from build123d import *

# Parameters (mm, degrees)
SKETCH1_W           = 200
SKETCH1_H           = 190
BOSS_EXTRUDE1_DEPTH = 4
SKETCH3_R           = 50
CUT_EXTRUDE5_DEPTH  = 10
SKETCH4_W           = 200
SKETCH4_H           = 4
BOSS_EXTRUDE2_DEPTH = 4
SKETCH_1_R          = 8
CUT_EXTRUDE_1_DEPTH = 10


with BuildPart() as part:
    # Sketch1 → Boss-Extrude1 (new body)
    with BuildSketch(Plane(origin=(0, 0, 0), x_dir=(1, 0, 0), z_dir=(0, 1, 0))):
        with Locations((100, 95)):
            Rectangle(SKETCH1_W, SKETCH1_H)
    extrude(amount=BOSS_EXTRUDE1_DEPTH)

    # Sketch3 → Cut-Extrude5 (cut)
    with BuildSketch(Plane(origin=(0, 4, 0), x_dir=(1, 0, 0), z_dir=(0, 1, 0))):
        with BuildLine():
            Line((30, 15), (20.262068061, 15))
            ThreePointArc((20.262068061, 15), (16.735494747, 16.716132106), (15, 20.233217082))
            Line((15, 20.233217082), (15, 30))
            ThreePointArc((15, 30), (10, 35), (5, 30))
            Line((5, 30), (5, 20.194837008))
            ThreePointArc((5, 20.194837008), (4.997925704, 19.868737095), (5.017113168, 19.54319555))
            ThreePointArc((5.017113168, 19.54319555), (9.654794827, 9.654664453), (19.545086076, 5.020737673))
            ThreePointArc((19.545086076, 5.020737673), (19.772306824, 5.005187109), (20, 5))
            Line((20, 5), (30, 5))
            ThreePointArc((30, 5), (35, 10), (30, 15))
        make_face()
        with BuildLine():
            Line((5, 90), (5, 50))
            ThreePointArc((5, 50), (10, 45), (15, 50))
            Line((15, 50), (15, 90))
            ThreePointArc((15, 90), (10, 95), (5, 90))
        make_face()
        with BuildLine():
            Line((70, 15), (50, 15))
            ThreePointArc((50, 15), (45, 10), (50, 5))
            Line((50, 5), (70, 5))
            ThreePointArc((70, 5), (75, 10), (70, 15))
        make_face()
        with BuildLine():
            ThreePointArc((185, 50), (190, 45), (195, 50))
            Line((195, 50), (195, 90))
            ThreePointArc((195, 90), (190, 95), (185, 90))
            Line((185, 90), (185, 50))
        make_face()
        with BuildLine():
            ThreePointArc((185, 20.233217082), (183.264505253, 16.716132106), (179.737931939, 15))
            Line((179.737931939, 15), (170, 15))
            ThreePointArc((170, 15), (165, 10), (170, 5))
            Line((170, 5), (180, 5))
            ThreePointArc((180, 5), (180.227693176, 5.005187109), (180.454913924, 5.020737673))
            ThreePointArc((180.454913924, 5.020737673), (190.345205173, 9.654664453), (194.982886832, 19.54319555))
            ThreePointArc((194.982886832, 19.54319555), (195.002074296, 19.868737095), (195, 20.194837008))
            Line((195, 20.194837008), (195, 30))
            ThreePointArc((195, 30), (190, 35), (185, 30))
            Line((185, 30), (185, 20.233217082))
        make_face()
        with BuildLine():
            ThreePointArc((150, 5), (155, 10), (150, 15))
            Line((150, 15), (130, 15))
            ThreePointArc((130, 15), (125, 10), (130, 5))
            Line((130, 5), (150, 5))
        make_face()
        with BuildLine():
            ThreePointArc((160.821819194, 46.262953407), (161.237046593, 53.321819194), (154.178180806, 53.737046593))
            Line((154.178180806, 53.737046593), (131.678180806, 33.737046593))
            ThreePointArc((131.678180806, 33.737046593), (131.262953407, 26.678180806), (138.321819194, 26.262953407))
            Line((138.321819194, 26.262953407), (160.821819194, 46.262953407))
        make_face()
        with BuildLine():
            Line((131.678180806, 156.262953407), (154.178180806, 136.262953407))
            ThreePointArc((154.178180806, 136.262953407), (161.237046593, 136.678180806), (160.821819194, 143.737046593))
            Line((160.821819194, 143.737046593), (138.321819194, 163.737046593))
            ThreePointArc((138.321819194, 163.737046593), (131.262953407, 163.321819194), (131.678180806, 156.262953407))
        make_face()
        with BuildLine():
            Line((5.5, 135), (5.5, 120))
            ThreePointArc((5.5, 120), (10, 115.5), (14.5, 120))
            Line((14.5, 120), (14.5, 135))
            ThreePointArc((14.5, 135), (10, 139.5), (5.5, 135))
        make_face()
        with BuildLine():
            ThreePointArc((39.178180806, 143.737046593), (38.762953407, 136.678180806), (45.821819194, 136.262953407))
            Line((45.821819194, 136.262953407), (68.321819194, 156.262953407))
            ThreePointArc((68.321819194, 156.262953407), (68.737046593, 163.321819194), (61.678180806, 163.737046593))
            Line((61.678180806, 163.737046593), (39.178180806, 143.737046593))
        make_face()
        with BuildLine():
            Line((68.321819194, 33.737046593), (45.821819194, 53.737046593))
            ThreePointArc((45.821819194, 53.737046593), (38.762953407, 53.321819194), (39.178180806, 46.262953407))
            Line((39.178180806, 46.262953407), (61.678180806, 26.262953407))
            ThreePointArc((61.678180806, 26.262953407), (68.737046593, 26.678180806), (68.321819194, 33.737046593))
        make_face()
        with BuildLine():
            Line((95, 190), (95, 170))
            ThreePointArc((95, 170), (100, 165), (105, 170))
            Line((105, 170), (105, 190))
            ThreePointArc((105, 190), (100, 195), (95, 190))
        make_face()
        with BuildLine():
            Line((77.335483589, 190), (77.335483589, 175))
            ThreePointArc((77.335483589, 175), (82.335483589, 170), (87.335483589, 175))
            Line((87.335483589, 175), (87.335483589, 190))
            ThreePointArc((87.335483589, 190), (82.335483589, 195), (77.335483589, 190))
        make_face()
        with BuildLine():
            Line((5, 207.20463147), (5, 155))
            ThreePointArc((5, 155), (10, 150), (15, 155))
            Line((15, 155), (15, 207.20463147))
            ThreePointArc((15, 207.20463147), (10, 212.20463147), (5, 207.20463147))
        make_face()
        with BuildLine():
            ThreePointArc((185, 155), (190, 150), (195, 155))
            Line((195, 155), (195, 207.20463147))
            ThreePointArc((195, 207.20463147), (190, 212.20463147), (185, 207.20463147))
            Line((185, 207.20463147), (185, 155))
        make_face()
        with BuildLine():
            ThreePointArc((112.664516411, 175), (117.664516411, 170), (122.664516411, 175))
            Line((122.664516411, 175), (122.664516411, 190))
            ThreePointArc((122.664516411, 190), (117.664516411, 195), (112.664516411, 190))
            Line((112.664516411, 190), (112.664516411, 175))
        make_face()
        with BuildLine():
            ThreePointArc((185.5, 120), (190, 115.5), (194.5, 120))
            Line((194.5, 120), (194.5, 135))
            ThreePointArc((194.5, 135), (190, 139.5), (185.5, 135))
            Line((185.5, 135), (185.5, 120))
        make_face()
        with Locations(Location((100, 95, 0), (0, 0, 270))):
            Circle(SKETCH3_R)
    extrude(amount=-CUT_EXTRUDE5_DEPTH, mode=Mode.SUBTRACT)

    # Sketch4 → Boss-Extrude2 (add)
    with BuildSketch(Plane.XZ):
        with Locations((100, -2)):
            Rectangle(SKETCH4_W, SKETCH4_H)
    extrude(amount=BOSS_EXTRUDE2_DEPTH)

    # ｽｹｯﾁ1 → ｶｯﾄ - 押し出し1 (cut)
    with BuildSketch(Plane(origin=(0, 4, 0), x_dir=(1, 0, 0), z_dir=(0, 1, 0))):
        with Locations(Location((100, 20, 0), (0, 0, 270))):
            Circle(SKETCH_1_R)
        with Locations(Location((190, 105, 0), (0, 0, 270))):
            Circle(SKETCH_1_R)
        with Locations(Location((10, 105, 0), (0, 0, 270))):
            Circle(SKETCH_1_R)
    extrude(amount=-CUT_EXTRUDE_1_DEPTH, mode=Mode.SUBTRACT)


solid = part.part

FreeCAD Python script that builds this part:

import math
import FreeCAD as App
import Part
import Sketcher
from FreeCAD import Vector

doc = App.newDocument("Part")
body = doc.addObject("PartDesign::Body", "Body")

# Sketch on XZ plane
sketch1 = body.newObject("Sketcher::SketchObject", "Sketch")
sketch1.AttachmentSupport = (doc.getObject("XZ_Plane"), [""])
sketch1.MapMode = "FlatFace"
sketch1.addGeometry([
    Part.LineSegment(Vector(0, -190, 0), Vector(0, 0, 0)),
    Part.LineSegment(Vector(0, 0, 0), Vector(200, 0, 0)),
    Part.LineSegment(Vector(200, 0, 0), Vector(200, -190, 0)),
    Part.LineSegment(Vector(200, -190, 0), Vector(0, -190, 0)),
], False)
sketch1.addConstraint([
    Sketcher.Constraint("Coincident", 0, 2, 1, 1),
    Sketcher.Constraint("Coincident", 1, 2, 2, 1),
    Sketcher.Constraint("Coincident", 2, 2, 3, 1),
    Sketcher.Constraint("Coincident", 3, 2, 0, 1),
    Sketcher.Constraint("Vertical", 0),
    Sketcher.Constraint("Horizontal", 1),
    Sketcher.Constraint("Vertical", 2),
    Sketcher.Constraint("Horizontal", 3),
    Sketcher.Constraint("Coincident", 0, 2, -1, 1),
    Sketcher.Constraint("DistanceX", 1, 1, 1, 2, 200.0),
    Sketcher.Constraint("DistanceY", 0, 1, 0, 2, 190.0),
])
pad1 = body.newObject("PartDesign::Pad", "Pad")
pad1.Profile = sketch1
pad1.Length = 4
pad1.Reversed = True

# Sketch on XZ plane
sketch2 = body.newObject("Sketcher::SketchObject", "Sketch001")
sketch2.AttachmentSupport = (doc.getObject("XZ_Plane"), [""])
sketch2.MapMode = "FlatFace"
sketch2.AttachmentOffset = App.Placement(Vector(0, 0, -4), App.Rotation())
sketch2.addGeometry([
    Part.LineSegment(Vector(30, -15, 0), Vector(20.262068, -15, 0)),  # 0
    Part.ArcOfCircle(Part.Circle(Vector(21.0059, -21.01008, 0), Vector(0, 0, 1), 6.055935), math.radians(97.055279), math.radians(172.629716)),  # 1
    Part.LineSegment(Vector(15, -20.233217, 0), Vector(15, -30, 0)),  # 2
    Part.ArcOfCircle(Part.Circle(Vector(10, -30, 0), Vector(0, 0, 1), 5), math.radians(180), math.radians(360)),  # 3
    Part.LineSegment(Vector(5, -30, 0), Vector(5, -20.194837, 0)),  # 4
    Part.ArcOfCircle(Part.Circle(Vector(9.996203, -20, 0), Vector(0, 0, 1), 5), math.radians(174.758097), math.radians(182.233233)),  # 5
    Part.ArcOfCircle(Part.Circle(Vector(21.0059, -21.01008, 0), Vector(0, 0, 1), 16.055935), math.radians(95.220148), math.radians(174.758097)),  # 6
    Part.ArcOfCircle(Part.Circle(Vector(20, -10, 0), Vector(0, 0, 1), 5), math.radians(90), math.radians(95.220148)),  # 7
    Part.LineSegment(Vector(20, -5, 0), Vector(30, -5, 0)),  # 8
    Part.ArcOfCircle(Part.Circle(Vector(30, -10, 0), Vector(0, 0, 1), 5), math.radians(-90), math.radians(90)),  # 9
    Part.LineSegment(Vector(5, -90, 0), Vector(5, -50, 0)),  # 10
    Part.ArcOfCircle(Part.Circle(Vector(10, -50, 0), Vector(0, 0, 1), 5), math.radians(0), math.radians(180)),  # 11
    Part.LineSegment(Vector(15, -50, 0), Vector(15, -90, 0)),  # 12
    Part.ArcOfCircle(Part.Circle(Vector(10, -90, 0), Vector(0, 0, 1), 5), math.radians(180), math.radians(360)),  # 13
    Part.LineSegment(Vector(70, -15, 0), Vector(50, -15, 0)),  # 14
    Part.ArcOfCircle(Part.Circle(Vector(50, -10, 0), Vector(0, 0, 1), 5), math.radians(90), math.radians(270)),  # 15
    Part.LineSegment(Vector(50, -5, 0), Vector(70, -5, 0)),  # 16
    Part.ArcOfCircle(Part.Circle(Vector(70, -10, 0), Vector(0, 0, 1), 5), math.radians(-90), math.radians(90)),  # 17
    Part.ArcOfCircle(Part.Circle(Vector(190, -50, 0), Vector(0, 0, 1), 5), math.radians(0), math.radians(180)),  # 18
    Part.LineSegment(Vector(195, -50, 0), Vector(195, -90, 0)),  # 19
    Part.ArcOfCircle(Part.Circle(Vector(190, -90, 0), Vector(0, 0, 1), 5), math.radians(180), math.radians(360)),  # 20
    Part.LineSegment(Vector(185, -90, 0), Vector(185, -50, 0)),  # 21
    Part.ArcOfCircle(Part.Circle(Vector(178.9941, -21.01008, 0), Vector(0, 0, 1), 6.055935), math.radians(7.370284), math.radians(82.944721)),  # 22
    Part.LineSegment(Vector(179.737932, -15, 0), Vector(170, -15, 0)),  # 23
    Part.ArcOfCircle(Part.Circle(Vector(170, -10, 0), Vector(0, 0, 1), 5), math.radians(90), math.radians(270)),  # 24
    Part.LineSegment(Vector(170, -5, 0), Vector(180, -5, 0)),  # 25
    Part.ArcOfCircle(Part.Circle(Vector(180, -10, 0), Vector(0, 0, 1), 5), math.radians(84.779852), math.radians(90)),  # 26
    Part.ArcOfCircle(Part.Circle(Vector(178.9941, -21.01008, 0), Vector(0, 0, 1), 16.055935), math.radians(5.241903), math.radians(84.779852)),  # 27
    Part.ArcOfCircle(Part.Circle(Vector(190.003797, -20, 0), Vector(0, 0, 1), 5), math.radians(-2.233233), math.radians(5.241903)),  # 28
    Part.LineSegment(Vector(195, -20.194837, 0), Vector(195, -30, 0)),  # 29
    Part.ArcOfCircle(Part.Circle(Vector(190, -30, 0), Vector(0, 0, 1), 5), math.radians(180), math.radians(360)),  # 30
    Part.LineSegment(Vector(185, -30, 0), Vector(185, -20.233217, 0)),  # 31
    Part.ArcOfCircle(Part.Circle(Vector(150, -10, 0), Vector(0, 0, 1), 5), math.radians(-90), math.radians(90)),  # 32
    Part.LineSegment(Vector(150, -15, 0), Vector(130, -15, 0)),  # 33
    Part.ArcOfCircle(Part.Circle(Vector(130, -10, 0), Vector(0, 0, 1), 5), math.radians(90), math.radians(270)),  # 34
    Part.LineSegment(Vector(130, -5, 0), Vector(150, -5, 0)),  # 35
    Part.ArcOfCircle(Part.Circle(Vector(157.5, -50, 0), Vector(0, 0, 1), 5), math.radians(-131.633539), math.radians(48.366461)),  # 36
    Part.LineSegment(Vector(154.178181, -53.737047, 0), Vector(131.678181, -33.737047, 0)),  # 37
    Part.ArcOfCircle(Part.Circle(Vector(135, -30, 0), Vector(0, 0, 1), 5), math.radians(48.366461), math.radians(228.366461)),  # 38
    Part.LineSegment(Vector(138.321819, -26.262953, 0), Vector(160.821819, -46.262953, 0)),  # 39
    Part.LineSegment(Vector(131.678181, -156.262953, 0), Vector(154.178181, -136.262953, 0)),  # 40
    Part.ArcOfCircle(Part.Circle(Vector(157.5, -140, 0), Vector(0, 0, 1), 5), math.radians(-48.366461), math.radians(131.633539)),  # 41
    Part.LineSegment(Vector(160.821819, -143.737047, 0), Vector(138.321819, -163.737047, 0)),  # 42
    Part.ArcOfCircle(Part.Circle(Vector(135, -160, 0), Vector(0, 0, 1), 5), math.radians(131.633539), math.radians(311.633539)),  # 43
    Part.LineSegment(Vector(5.5, -135, 0), Vector(5.5, -120, 0)),  # 44
    Part.ArcOfCircle(Part.Circle(Vector(10, -120, 0), Vector(0, 0, 1), 4.5), math.radians(0), math.radians(180)),  # 45
    Part.LineSegment(Vector(14.5, -120, 0), Vector(14.5, -135, 0)),  # 46
    Part.ArcOfCircle(Part.Circle(Vector(10, -135, 0), Vector(0, 0, 1), 4.5), math.radians(180), math.radians(360)),  # 47
    Part.ArcOfCircle(Part.Circle(Vector(42.5, -140, 0), Vector(0, 0, 1), 5), math.radians(48.366461), math.radians(228.366461)),  # 48
    Part.LineSegment(Vector(45.821819, -136.262953, 0), Vector(68.321819, -156.262953, 0)),  # 49
    Part.ArcOfCircle(Part.Circle(Vector(65, -160, 0), Vector(0, 0, 1), 5), math.radians(-131.633539), math.radians(48.366461)),  # 50
    Part.LineSegment(Vector(61.678181, -163.737047, 0), Vector(39.178181, -143.737047, 0)),  # 51
    Part.LineSegment(Vector(68.321819, -33.737047, 0), Vector(45.821819, -53.737047, 0)),  # 52
    Part.ArcOfCircle(Part.Circle(Vector(42.5, -50, 0), Vector(0, 0, 1), 5), math.radians(131.633539), math.radians(311.633539)),  # 53
    Part.LineSegment(Vector(39.178181, -46.262953, 0), Vector(61.678181, -26.262953, 0)),  # 54
    Part.ArcOfCircle(Part.Circle(Vector(65, -30, 0), Vector(0, 0, 1), 5), math.radians(-48.366461), math.radians(131.633539)),  # 55
    Part.LineSegment(Vector(95, -190, 0), Vector(95, -170, 0)),  # 56
    Part.ArcOfCircle(Part.Circle(Vector(100, -170, 0), Vector(0, 0, 1), 5), math.radians(0), math.radians(180)),  # 57
    Part.LineSegment(Vector(105, -170, 0), Vector(105, -190, 0)),  # 58
    Part.ArcOfCircle(Part.Circle(Vector(100, -190, 0), Vector(0, 0, 1), 5), math.radians(180), math.radians(360)),  # 59
    Part.LineSegment(Vector(77.335484, -190, 0), Vector(77.335484, -175, 0)),  # 60
    Part.ArcOfCircle(Part.Circle(Vector(82.335484, -175, 0), Vector(0, 0, 1), 5), math.radians(0), math.radians(180)),  # 61
    Part.LineSegment(Vector(87.335484, -175, 0), Vector(87.335484, -190, 0)),  # 62
    Part.ArcOfCircle(Part.Circle(Vector(82.335484, -190, 0), Vector(0, 0, 1), 5), math.radians(180), math.radians(360)),  # 63
    Part.LineSegment(Vector(5, -207.204631, 0), Vector(5, -155, 0)),  # 64
    Part.ArcOfCircle(Part.Circle(Vector(10, -155, 0), Vector(0, 0, 1), 5), math.radians(0), math.radians(180)),  # 65
    Part.LineSegment(Vector(15, -155, 0), Vector(15, -207.204631, 0)),  # 66
    Part.ArcOfCircle(Part.Circle(Vector(10, -207.204631, 0), Vector(0, 0, 1), 5), math.radians(180), math.radians(360)),  # 67
    Part.ArcOfCircle(Part.Circle(Vector(190, -155, 0), Vector(0, 0, 1), 5), math.radians(0), math.radians(180)),  # 68
    Part.LineSegment(Vector(195, -155, 0), Vector(195, -207.204631, 0)),  # 69
    Part.ArcOfCircle(Part.Circle(Vector(190, -207.204631, 0), Vector(0, 0, 1), 5), math.radians(180), math.radians(360)),  # 70
    Part.LineSegment(Vector(185, -207.204631, 0), Vector(185, -155, 0)),  # 71
    Part.ArcOfCircle(Part.Circle(Vector(117.664516, -175, 0), Vector(0, 0, 1), 5), math.radians(0), math.radians(180)),  # 72
    Part.LineSegment(Vector(122.664516, -175, 0), Vector(122.664516, -190, 0)),  # 73
    Part.ArcOfCircle(Part.Circle(Vector(117.664516, -190, 0), Vector(0, 0, 1), 5), math.radians(180), math.radians(360)),  # 74
    Part.LineSegment(Vector(112.664516, -190, 0), Vector(112.664516, -175, 0)),  # 75
    Part.ArcOfCircle(Part.Circle(Vector(190, -120, 0), Vector(0, 0, 1), 4.5), math.radians(0), math.radians(180)),  # 76
    Part.LineSegment(Vector(194.5, -120, 0), Vector(194.5, -135, 0)),  # 77
    Part.ArcOfCircle(Part.Circle(Vector(190, -135, 0), Vector(0, 0, 1), 4.5), math.radians(180), math.radians(360)),  # 78
    Part.LineSegment(Vector(185.5, -135, 0), Vector(185.5, -120, 0)),  # 79
    Part.Circle(Vector(100, -95, 0), Vector(0, 0, 1), 50),  # 80
], False)
sketch2.addConstraint([
    Sketcher.Constraint("Coincident", 0, 2, 1, 1),
    Sketcher.Constraint("Coincident", 1, 2, 2, 1),
    Sketcher.Constraint("Tangent", 2, 2, 3, 2),
    Sketcher.Constraint("Tangent", 3, 1, 4, 1),
    Sketcher.Constraint("Coincident", 4, 2, 5, 2),
    Sketcher.Constraint("Tangent", 5, 1, 6, 2),
    Sketcher.Constraint("Tangent", 6, 1, 7, 2),
    Sketcher.Constraint("Tangent", 7, 1, 8, 1),
    Sketcher.Constraint("Tangent", 8, 2, 9, 2),
    Sketcher.Constraint("Tangent", 9, 1, 0, 1),
    Sketcher.Constraint("Tangent", 10, 2, 11, 2),
    Sketcher.Constraint("Tangent", 11, 1, 12, 1),
    Sketcher.Constraint("Tangent", 12, 2, 13, 2),
    Sketcher.Constraint("Tangent", 13, 1, 10, 1),
    Sketcher.Constraint("Tangent", 14, 2, 15, 2),
    Sketcher.Constraint("Tangent", 15, 1, 16, 1),
    Sketcher.Constraint("Tangent", 16, 2, 17, 2),
    Sketcher.Constraint("Tangent", 17, 1, 14, 1),
    Sketcher.Constraint("Tangent", 18, 1, 19, 1),
    Sketcher.Constraint("Tangent", 19, 2, 20, 2),
    Sketcher.Constraint("Tangent", 20, 1, 21, 1),
    Sketcher.Constraint("Tangent", 21, 2, 18, 2),
    Sketcher.Constraint("Coincident", 22, 2, 23, 1),
    Sketcher.Constraint("Tangent", 23, 2, 24, 2),
    Sketcher.Constraint("Tangent", 24, 1, 25, 1),
    Sketcher.Constraint("Tangent", 25, 2, 26, 2),
    Sketcher.Constraint("Tangent", 26, 1, 27, 2),
    Sketcher.Constraint("Tangent", 27, 1, 28, 2),
    Sketcher.Constraint("Coincident", 28, 1, 29, 1),
    Sketcher.Constraint("Tangent", 29, 2, 30, 2),
    Sketcher.Constraint("Tangent", 30, 1, 31, 1),
    Sketcher.Constraint("Coincident", 31, 2, 22, 1),
    Sketcher.Constraint("Tangent", 32, 1, 33, 1),
    Sketcher.Constraint("Tangent", 33, 2, 34, 2),
    Sketcher.Constraint("Tangent", 34, 1, 35, 1),
    Sketcher.Constraint("Tangent", 35, 2, 32, 2),
    Sketcher.Constraint("Tangent", 36, 1, 37, 1),
    Sketcher.Constraint("Tangent", 37, 2, 38, 2),
    Sketcher.Constraint("Tangent", 38, 1, 39, 1),
    Sketcher.Constraint("Tangent", 39, 2, 36, 2),
    Sketcher.Constraint("Tangent", 40, 2, 41, 2),
    Sketcher.Constraint("Tangent", 41, 1, 42, 1),
    Sketcher.Constraint("Tangent", 42, 2, 43, 2),
    Sketcher.Constraint("Tangent", 43, 1, 40, 1),
    Sketcher.Constraint("Tangent", 44, 2, 45, 2),
    Sketcher.Constraint("Tangent", 45, 1, 46, 1),
    Sketcher.Constraint("Tangent", 46, 2, 47, 2),
    Sketcher.Constraint("Tangent", 47, 1, 44, 1),
    Sketcher.Constraint("Tangent", 48, 1, 49, 1),
    Sketcher.Constraint("Tangent", 49, 2, 50, 2),
    Sketcher.Constraint("Tangent", 50, 1, 51, 1),
    Sketcher.Constraint("Tangent", 51, 2, 48, 2),
    Sketcher.Constraint("Tangent", 52, 2, 53, 2),
    Sketcher.Constraint("Tangent", 53, 1, 54, 1),
    Sketcher.Constraint("Tangent", 54, 2, 55, 2),
    Sketcher.Constraint("Tangent", 55, 1, 52, 1),
    Sketcher.Constraint("Tangent", 56, 2, 57, 2),
    Sketcher.Constraint("Tangent", 57, 1, 58, 1),
    Sketcher.Constraint("Tangent", 58, 2, 59, 2),
    Sketcher.Constraint("Tangent", 59, 1, 56, 1),
    Sketcher.Constraint("Tangent", 60, 2, 61, 2),
    Sketcher.Constraint("Tangent", 61, 1, 62, 1),
    Sketcher.Constraint("Tangent", 62, 2, 63, 2),
    Sketcher.Constraint("Tangent", 63, 1, 60, 1),
    Sketcher.Constraint("Tangent", 64, 2, 65, 2),
    Sketcher.Constraint("Tangent", 65, 1, 66, 1),
    Sketcher.Constraint("Tangent", 66, 2, 67, 2),
    Sketcher.Constraint("Tangent", 67, 1, 64, 1),
    Sketcher.Constraint("Tangent", 68, 1, 69, 1),
    Sketcher.Constraint("Tangent", 69, 2, 70, 2),
    Sketcher.Constraint("Tangent", 70, 1, 71, 1),
    Sketcher.Constraint("Tangent", 71, 2, 68, 2),
    Sketcher.Constraint("Tangent", 72, 1, 73, 1),
    Sketcher.Constraint("Tangent", 73, 2, 74, 2),
    Sketcher.Constraint("Tangent", 74, 1, 75, 1),
    Sketcher.Constraint("Tangent", 75, 2, 72, 2),
    Sketcher.Constraint("Tangent", 76, 1, 77, 1),
    Sketcher.Constraint("Tangent", 77, 2, 78, 2),
    Sketcher.Constraint("Tangent", 78, 1, 79, 1),
    Sketcher.Constraint("Tangent", 79, 2, 76, 2),
    Sketcher.Constraint("Horizontal", 0),
    Sketcher.Constraint("Vertical", 2),
    Sketcher.Constraint("Vertical", 4),
    Sketcher.Constraint("Horizontal", 8),
    Sketcher.Constraint("Vertical", 10),
    Sketcher.Constraint("Vertical", 12),
    Sketcher.Constraint("Horizontal", 14),
    Sketcher.Constraint("Horizontal", 16),
    Sketcher.Constraint("Vertical", 19),
    Sketcher.Constraint("Vertical", 21),
    Sketcher.Constraint("Horizontal", 23),
    Sketcher.Constraint("Horizontal", 25),
    Sketcher.Constraint("Vertical", 29),
    Sketcher.Constraint("Vertical", 31),
    Sketcher.Constraint("Horizontal", 33),
    Sketcher.Constraint("Horizontal", 35),
    Sketcher.Constraint("Vertical", 44),
    Sketcher.Constraint("Vertical", 46),
    Sketcher.Constraint("Vertical", 56),
    Sketcher.Constraint("Vertical", 58),
    Sketcher.Constraint("Vertical", 60),
    Sketcher.Constraint("Vertical", 62),
    Sketcher.Constraint("Vertical", 64),
    Sketcher.Constraint("Vertical", 66),
    Sketcher.Constraint("Vertical", 69),
    Sketcher.Constraint("Vertical", 71),
    Sketcher.Constraint("Vertical", 73),
    Sketcher.Constraint("Vertical", 75),
    Sketcher.Constraint("Vertical", 77),
    Sketcher.Constraint("Vertical", 79),
    Sketcher.Constraint("Coincident", 6, 3, 1, 3),
    Sketcher.Constraint("Coincident", 27, 3, 22, 3),
    Sketcher.Constraint("Equal", 3, 5),
    Sketcher.Constraint("Equal", 5, 7),
    Sketcher.Constraint("Equal", 7, 9),
    Sketcher.Constraint("Equal", 9, 11),
    Sketcher.Constraint("Equal", 13, 15),
    Sketcher.Constraint("Equal", 17, 18),
    Sketcher.Constraint("Equal", 1, 22),
    Sketcher.Constraint("Equal", 20, 24),
    Sketcher.Constraint("Equal", 24, 26),
    Sketcher.Constraint("Equal", 6, 27),
    Sketcher.Constraint("Equal", 26, 28),
    Sketcher.Constraint("Equal", 28, 30),
    Sketcher.Constraint("Equal", 30, 32),
    Sketcher.Constraint("Equal", 34, 36),
    Sketcher.Constraint("Equal", 36, 38),
    Sketcher.Constraint("Equal", 38, 41),
    Sketcher.Constraint("Equal", 41, 43),
    Sketcher.Constraint("Equal", 43, 48),
    Sketcher.Constraint("Equal", 48, 50),
    Sketcher.Constraint("Equal", 50, 53),
    Sketcher.Constraint("Equal", 53, 55),
    Sketcher.Constraint("Equal", 55, 57),
    Sketcher.Constraint("Equal", 59, 61),
    Sketcher.Constraint("Equal", 63, 65),
    Sketcher.Constraint("Equal", 67, 68),
    Sketcher.Constraint("Equal", 70, 72),
    Sketcher.Constraint("Equal", 47, 76),
    Sketcher.Constraint("Parallel", 39, 49),
    Sketcher.Constraint("Parallel", 42, 52),
    Sketcher.Constraint("Horizontal", 9, 3, 15, 3),
    Sketcher.Constraint("Horizontal", 11, 3, 18, 3),
    Sketcher.Constraint("Horizontal", 13, 3, 20, 3),
    Sketcher.Constraint("Horizontal", 6, 3, 22, 3),
    Sketcher.Constraint("Horizontal", 17, 3, 24, 3),
    Sketcher.Constraint("Horizontal", 5, 3, 28, 3),
    Sketcher.Constraint("Horizontal", 3, 3, 30, 3),
    Sketcher.Constraint("Horizontal", 26, 3, 32, 3),
    Sketcher.Constraint("Horizontal", 18, 3, 36, 3),
    Sketcher.Constraint("Horizontal", 30, 3, 38, 3),
    Sketcher.Constraint("Horizontal", 41, 3, 48, 3),
    Sketcher.Constraint("Horizontal", 43, 3, 50, 3),
    Sketcher.Constraint("Horizontal", 36, 3, 53, 3),
    Sketcher.Constraint("Horizontal", 38, 3, 55, 3),
    Sketcher.Constraint("Horizontal", 59, 3, 63, 3),
    Sketcher.Constraint("Horizontal", 65, 3, 68, 3),
    Sketcher.Constraint("Horizontal", 67, 3, 70, 3),
    Sketcher.Constraint("Horizontal", 61, 3, 72, 3),
    Sketcher.Constraint("Horizontal", 63, 3, 74, 3),
    Sketcher.Constraint("Horizontal", 45, 3, 76, 3),
    Sketcher.Constraint("Horizontal", 47, 3, 78, 3),
    Sketcher.Constraint("Horizontal", 4, 2, 28, 1),
    Sketcher.Constraint("Horizontal", 40, 2, 48, 1),
    Sketcher.Constraint("Vertical", 3, 3, 11, 3),
    Sketcher.Constraint("Vertical", 20, 3, 30, 3),
    Sketcher.Constraint("Vertical", 36, 3, 41, 3),
    Sketcher.Constraint("Vertical", 38, 3, 43, 3),
    Sketcher.Constraint("Vertical", 13, 3, 45, 3),
    Sketcher.Constraint("Vertical", 48, 3, 53, 3),
    Sketcher.Constraint("Vertical", 47, 3, 65, 3),
    Sketcher.Constraint("Vertical", 30, 3, 68, 3),
    Sketcher.Constraint("Vertical", 70, 3, 76, 3),
    Sketcher.Constraint("Vertical", 59, 3, 80, 3),
    Sketcher.Constraint("Equal", 0, 23),
    Sketcher.Constraint("Equal", 16, 33),
    Sketcher.Constraint("Equal", 35, 56),
    Sketcher.Constraint("Equal", 46, 60),
    Sketcher.Constraint("Diameter", 80, 100.0),
    Sketcher.Constraint("Radius", 3, 5.0),
    Sketcher.Constraint("Radius", 45, 4.5),
    Sketcher.Constraint("DistanceX", 8, 1, 8, 2, 10.0),
    Sketcher.Constraint("DistanceX", 14, 2, 14, 1, 20.0),
    Sketcher.Constraint("DistanceY", 10, 1, 10, 2, 40.0),
    Sketcher.Constraint("DistanceY", 44, 1, 44, 2, 15.0),
    Sketcher.Constraint("DistanceX", -1, 1, 3, 3, 10.0),
    Sketcher.Constraint("DistanceY", 3, 3, -1, 1, 30.0),
    Sketcher.Constraint("DistanceY", 5, 3, -1, 1, 20.0),
    Sketcher.Constraint("DistanceX", -1, 1, 7, 3, 20.0),
    Sketcher.Constraint("DistanceY", 7, 3, -1, 1, 10.0),
    Sketcher.Constraint("DistanceY", 11, 3, -1, 1, 50.0),
    Sketcher.Constraint("DistanceX", -1, 1, 15, 3, 50.0),
    Sketcher.Constraint("DistanceX", -1, 1, 18, 3, 190.0),
    Sketcher.Constraint("DistanceX", -1, 1, 32, 3, 150.0),
    Sketcher.Constraint("DistanceX", -1, 1, 38, 3, 135.0),
    Sketcher.Constraint("DistanceY", 41, 3, -1, 1, 140.0),
    Sketcher.Constraint("DistanceY", 45, 3, -1, 1, 120.0),
    Sketcher.Constraint("DistanceX", -1, 1, 50, 3, 65.0),
    Sketcher.Constraint("DistanceX", -1, 1, 57, 3, 100.0),
    Sketcher.Constraint("DistanceY", 57, 3, -1, 1, 170.0),
    Sketcher.Constraint("DistanceY", 65, 3, -1, 1, 155.0),
    Sketcher.Constraint("DistanceY", 80, 3, -1, 1, 95.0),
    Sketcher.Constraint("DistanceX", -1, 1, 36, 3, 157.5),
    Sketcher.Constraint("Radius", 1, 6.055935),
    Sketcher.Constraint("Radius", 6, 16.055935),
    Sketcher.Constraint("DistanceX", 0, 2, 0, 1, 9.737932),
    Sketcher.Constraint("DistanceY", 64, 1, 64, 2, 52.204631),
    Sketcher.Constraint("DistanceX", -1, 1, 61, 3, 82.335484),
    Sketcher.Constraint("DistanceX", -1, 1, 72, 3, 117.664516),
])
pocket1 = body.newObject("PartDesign::Pocket", "Pocket")
pocket1.Profile = sketch2
pocket1.Length = 10
pocket1.Reversed = True

# Sketch on XZ plane
sketch3 = body.newObject("Sketcher::SketchObject", "Sketch002")
sketch3.AttachmentSupport = (doc.getObject("XZ_Plane"), [""])
sketch3.MapMode = "FlatFace"
sketch3.addGeometry([
    Part.LineSegment(Vector(0, 0, 0), Vector(0, -4, 0)),
    Part.LineSegment(Vector(0, -4, 0), Vector(200, -4, 0)),
    Part.LineSegment(Vector(200, -4, 0), Vector(200, 0, 0)),
    Part.LineSegment(Vector(200, 0, 0), Vector(0, 0, 0)),
], False)
sketch3.addConstraint([
    Sketcher.Constraint("Coincident", 0, 2, 1, 1),
    Sketcher.Constraint("Coincident", 1, 2, 2, 1),
    Sketcher.Constraint("Coincident", 2, 2, 3, 1),
    Sketcher.Constraint("Coincident", 3, 2, 0, 1),
    Sketcher.Constraint("Vertical", 0),
    Sketcher.Constraint("Horizontal", 1),
    Sketcher.Constraint("Vertical", 2),
    Sketcher.Constraint("Horizontal", 3),
    Sketcher.Constraint("Coincident", 3, 2, -1, 1),
    Sketcher.Constraint("DistanceX", 1, 1, 1, 2, 200.0),
    Sketcher.Constraint("DistanceY", 0, 2, 0, 1, 4.0),
])
pad2 = body.newObject("PartDesign::Pad", "Pad001")
pad2.Profile = sketch3
pad2.Length = 4

# Sketch on XZ plane
sketch4 = body.newObject("Sketcher::SketchObject", "Sketch003")
sketch4.AttachmentSupport = (doc.getObject("XZ_Plane"), [""])
sketch4.MapMode = "FlatFace"
sketch4.AttachmentOffset = App.Placement(Vector(0, 0, -4), App.Rotation())
sketch4.addGeometry([
    Part.Circle(Vector(100, -20, 0), Vector(0, 0, 1), 8),
    Part.Circle(Vector(190, -105, 0), Vector(0, 0, 1), 8),
    Part.Circle(Vector(10, -105, 0), Vector(0, 0, 1), 8),
], False)
sketch4.addConstraint([
    Sketcher.Constraint("Equal", 0, 1),
    Sketcher.Constraint("Equal", 1, 2),
    Sketcher.Constraint("Horizontal", 1, 3, 2, 3),
    Sketcher.Constraint("Diameter", 0, 16.0),
    Sketcher.Constraint("DistanceX", -1, 1, 0, 3, 100.0),
    Sketcher.Constraint("DistanceY", 0, 3, -1, 1, 20.0),
    Sketcher.Constraint("DistanceX", -1, 1, 1, 3, 190.0),
    Sketcher.Constraint("DistanceY", 1, 3, -1, 1, 105.0),
    Sketcher.Constraint("DistanceX", -1, 1, 2, 3, 10.0),
])
pocket2 = body.newObject("PartDesign::Pocket", "Pocket001")
pocket2.Profile = sketch4
pocket2.Length = 10
pocket2.Reversed = True

doc.recompute()
